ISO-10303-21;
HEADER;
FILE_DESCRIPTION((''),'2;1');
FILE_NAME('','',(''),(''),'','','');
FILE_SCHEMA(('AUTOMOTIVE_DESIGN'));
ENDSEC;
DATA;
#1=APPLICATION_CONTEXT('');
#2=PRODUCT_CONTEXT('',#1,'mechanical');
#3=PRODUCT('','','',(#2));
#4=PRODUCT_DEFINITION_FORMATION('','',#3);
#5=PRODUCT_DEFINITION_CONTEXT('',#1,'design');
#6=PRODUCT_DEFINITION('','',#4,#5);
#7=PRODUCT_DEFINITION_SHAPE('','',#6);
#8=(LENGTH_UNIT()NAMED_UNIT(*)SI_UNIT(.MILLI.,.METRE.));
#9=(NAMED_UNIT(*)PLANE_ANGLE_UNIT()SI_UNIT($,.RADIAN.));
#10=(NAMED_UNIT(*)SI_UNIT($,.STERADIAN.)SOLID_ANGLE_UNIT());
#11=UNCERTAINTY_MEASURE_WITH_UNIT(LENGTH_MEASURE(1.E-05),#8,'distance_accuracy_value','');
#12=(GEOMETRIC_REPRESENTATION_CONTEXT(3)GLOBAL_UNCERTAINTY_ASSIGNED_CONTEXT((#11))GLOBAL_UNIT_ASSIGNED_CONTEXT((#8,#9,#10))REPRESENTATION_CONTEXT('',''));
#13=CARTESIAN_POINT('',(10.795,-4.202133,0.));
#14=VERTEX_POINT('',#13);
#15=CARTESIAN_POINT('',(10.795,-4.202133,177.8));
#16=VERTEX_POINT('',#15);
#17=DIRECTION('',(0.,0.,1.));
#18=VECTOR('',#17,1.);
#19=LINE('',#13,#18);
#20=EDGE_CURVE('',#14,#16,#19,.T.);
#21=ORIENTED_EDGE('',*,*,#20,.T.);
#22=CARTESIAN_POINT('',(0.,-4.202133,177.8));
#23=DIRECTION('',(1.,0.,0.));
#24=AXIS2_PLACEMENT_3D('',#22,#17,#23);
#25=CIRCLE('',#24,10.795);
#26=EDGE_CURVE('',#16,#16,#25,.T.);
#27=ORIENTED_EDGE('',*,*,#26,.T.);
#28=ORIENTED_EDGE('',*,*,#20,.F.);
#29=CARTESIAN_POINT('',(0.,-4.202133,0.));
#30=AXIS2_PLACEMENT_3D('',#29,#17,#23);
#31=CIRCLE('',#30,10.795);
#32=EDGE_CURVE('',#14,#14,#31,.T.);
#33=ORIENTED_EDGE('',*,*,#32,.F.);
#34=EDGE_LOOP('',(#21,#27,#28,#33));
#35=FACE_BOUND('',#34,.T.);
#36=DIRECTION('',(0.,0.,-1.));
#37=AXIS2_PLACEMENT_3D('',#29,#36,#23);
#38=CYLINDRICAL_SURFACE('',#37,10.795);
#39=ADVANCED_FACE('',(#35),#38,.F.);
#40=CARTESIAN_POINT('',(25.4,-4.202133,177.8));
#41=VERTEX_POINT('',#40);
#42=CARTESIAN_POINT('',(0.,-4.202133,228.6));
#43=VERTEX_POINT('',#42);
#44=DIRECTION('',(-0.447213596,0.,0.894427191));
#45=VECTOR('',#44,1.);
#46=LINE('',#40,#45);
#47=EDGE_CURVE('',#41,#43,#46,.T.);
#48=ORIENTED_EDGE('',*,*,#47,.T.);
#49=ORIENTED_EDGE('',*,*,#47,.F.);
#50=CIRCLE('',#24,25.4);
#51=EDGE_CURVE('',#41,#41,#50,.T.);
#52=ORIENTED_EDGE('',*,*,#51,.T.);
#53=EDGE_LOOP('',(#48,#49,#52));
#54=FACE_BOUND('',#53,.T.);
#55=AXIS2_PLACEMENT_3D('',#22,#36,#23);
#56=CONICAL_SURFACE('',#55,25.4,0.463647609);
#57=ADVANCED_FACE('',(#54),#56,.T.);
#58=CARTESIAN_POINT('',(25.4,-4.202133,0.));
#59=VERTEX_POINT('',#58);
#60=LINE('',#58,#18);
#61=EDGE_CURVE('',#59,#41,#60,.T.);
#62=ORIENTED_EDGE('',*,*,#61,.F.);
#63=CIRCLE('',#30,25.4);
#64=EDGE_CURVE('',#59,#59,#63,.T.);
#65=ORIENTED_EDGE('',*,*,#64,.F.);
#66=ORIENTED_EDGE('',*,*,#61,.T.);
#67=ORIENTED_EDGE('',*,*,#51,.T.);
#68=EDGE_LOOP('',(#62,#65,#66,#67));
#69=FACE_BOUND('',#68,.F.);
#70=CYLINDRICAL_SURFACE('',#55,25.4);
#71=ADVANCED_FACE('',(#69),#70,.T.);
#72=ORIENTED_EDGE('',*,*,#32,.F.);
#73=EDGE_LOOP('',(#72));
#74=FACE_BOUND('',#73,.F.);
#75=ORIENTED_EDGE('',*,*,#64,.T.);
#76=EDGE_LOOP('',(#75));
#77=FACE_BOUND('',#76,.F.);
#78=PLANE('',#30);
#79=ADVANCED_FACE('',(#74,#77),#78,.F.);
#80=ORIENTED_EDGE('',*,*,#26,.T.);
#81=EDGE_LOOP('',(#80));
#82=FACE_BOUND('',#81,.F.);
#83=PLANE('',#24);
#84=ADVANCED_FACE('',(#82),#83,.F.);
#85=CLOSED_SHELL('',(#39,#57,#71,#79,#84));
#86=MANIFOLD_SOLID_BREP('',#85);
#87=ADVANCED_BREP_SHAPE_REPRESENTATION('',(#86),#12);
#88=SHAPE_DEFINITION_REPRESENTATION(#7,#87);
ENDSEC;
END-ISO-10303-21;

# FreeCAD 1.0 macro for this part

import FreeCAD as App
import Part
import Sketcher
from FreeCAD import Vector
Q = App.Units.Quantity


def edges_at(feature, points):
    """Names of the edges that pass closest to the given points."""
    edges = feature.Shape.Edges
    near = lambda p: min(range(len(edges)), key=lambda i: edges[i].distToShape(Part.Vertex(*p))[0])
    return sorted({f"Edge{near(p) + 1}" for p in points})

doc = App.newDocument("Part")
params = doc.addObject("Spreadsheet::Sheet", "Params")
for row, (alias, value) in enumerate([
    ("sketch1_diameter", "2 in"),
    ("sketch1_diameter2", "0.85 in"),
    ("pad1_length", "7 in"),
    ("sketch2_diameter", "2 in"),
    ("pad2_length", "2 in"),
    ("chamfer_size", "2 in"),
    ("chamfer_size2", "1 in"),
], start=1):
    params.set(f"A{row}", alias)
    params.set(f"B{row}", "=" + value)
    params.setAlias(f"B{row}", alias)

body = doc.addObject("PartDesign::Body", "Body")

# Sketch on XY plane
sketch1 = doc.addObject("Sketcher::SketchObject", "Sketch")
body.addObject(sketch1)
sketch1.AttachmentSupport = (doc.XY_Plane, [""])
sketch1.MapMode = "FlatFace"
sketch1.addGeometry(Part.Circle(Vector(0, -4, 0), Vector(0, 0, 1), 25), False)
sketch1.addGeometry(Part.Circle(Vector(0, -4, 0), Vector(0, 0, 1), 11), False)
sketch1.addConstraint(Sketcher.Constraint("Coincident", 1, 3, 0, 3))
sketch1.addConstraint(Sketcher.Constraint("PointOnObject", 0, 3, -2))
sketch1.addConstraint(Sketcher.Constraint("Diameter", 0, Q("2 in")))
sketch1.addConstraint(Sketcher.Constraint("Diameter", 1, Q("0.85 in")))
sketch1.addConstraint(Sketcher.Constraint("DistanceY", 0, 3, -1, 1, Q("4.202133 mm")))
sketch1.setExpression("Constraints[2]", "Params.sketch1_diameter")
sketch1.setExpression("Constraints[3]", "Params.sketch1_diameter2")
pad1 = doc.addObject("PartDesign::Pad", "Pad")
body.addObject(pad1)
pad1.Profile = sketch1
pad1.setExpression("Length", "Params.pad1_length")

# Sketch on XY plane
sketch2 = doc.addObject("Sketcher::SketchObject", "Sketch001")
body.addObject(sketch2)
sketch2.AttachmentSupport = (doc.XY_Plane, [""])
sketch2.MapMode = "FlatFace"
sketch2.AttachmentOffset = App.Placement(Vector(0, 0, 7 * 25.4), App.Rotation())
sketch2.addGeometry(Part.Circle(Vector(0, -4, 0), Vector(0, 0, 1), 25), False)
sketch2.addConstraint(Sketcher.Constraint("PointOnObject", 0, 3, -2))
sketch2.addConstraint(Sketcher.Constraint("Diameter", 0, Q("2 in")))
sketch2.addConstraint(Sketcher.Constraint("DistanceY", 0, 3, -1, 1, Q("4.202133 mm")))
sketch2.setExpression("Constraints[1]", "Params.sketch2_diameter")
pad2 = doc.addObject("PartDesign::Pad", "Pad001")
body.addObject(pad2)
pad2.Profile = sketch2
pad2.setExpression("Length", "Params.pad2_length")
doc.recompute()

chamfer = doc.addObject("PartDesign::Chamfer", "Chamfer")
body.addObject(chamfer)
chamfer.Base = (pad2, edges_at(pad2, [(-25.4, -4.202, 228.6)]))
chamfer.ChamferType = "Two distances"
chamfer.setExpression("Size", "Params.chamfer_size")
chamfer.setExpression("Size2", "Params.chamfer_size2")
chamfer.FlipDirection = True

doc.recompute()
